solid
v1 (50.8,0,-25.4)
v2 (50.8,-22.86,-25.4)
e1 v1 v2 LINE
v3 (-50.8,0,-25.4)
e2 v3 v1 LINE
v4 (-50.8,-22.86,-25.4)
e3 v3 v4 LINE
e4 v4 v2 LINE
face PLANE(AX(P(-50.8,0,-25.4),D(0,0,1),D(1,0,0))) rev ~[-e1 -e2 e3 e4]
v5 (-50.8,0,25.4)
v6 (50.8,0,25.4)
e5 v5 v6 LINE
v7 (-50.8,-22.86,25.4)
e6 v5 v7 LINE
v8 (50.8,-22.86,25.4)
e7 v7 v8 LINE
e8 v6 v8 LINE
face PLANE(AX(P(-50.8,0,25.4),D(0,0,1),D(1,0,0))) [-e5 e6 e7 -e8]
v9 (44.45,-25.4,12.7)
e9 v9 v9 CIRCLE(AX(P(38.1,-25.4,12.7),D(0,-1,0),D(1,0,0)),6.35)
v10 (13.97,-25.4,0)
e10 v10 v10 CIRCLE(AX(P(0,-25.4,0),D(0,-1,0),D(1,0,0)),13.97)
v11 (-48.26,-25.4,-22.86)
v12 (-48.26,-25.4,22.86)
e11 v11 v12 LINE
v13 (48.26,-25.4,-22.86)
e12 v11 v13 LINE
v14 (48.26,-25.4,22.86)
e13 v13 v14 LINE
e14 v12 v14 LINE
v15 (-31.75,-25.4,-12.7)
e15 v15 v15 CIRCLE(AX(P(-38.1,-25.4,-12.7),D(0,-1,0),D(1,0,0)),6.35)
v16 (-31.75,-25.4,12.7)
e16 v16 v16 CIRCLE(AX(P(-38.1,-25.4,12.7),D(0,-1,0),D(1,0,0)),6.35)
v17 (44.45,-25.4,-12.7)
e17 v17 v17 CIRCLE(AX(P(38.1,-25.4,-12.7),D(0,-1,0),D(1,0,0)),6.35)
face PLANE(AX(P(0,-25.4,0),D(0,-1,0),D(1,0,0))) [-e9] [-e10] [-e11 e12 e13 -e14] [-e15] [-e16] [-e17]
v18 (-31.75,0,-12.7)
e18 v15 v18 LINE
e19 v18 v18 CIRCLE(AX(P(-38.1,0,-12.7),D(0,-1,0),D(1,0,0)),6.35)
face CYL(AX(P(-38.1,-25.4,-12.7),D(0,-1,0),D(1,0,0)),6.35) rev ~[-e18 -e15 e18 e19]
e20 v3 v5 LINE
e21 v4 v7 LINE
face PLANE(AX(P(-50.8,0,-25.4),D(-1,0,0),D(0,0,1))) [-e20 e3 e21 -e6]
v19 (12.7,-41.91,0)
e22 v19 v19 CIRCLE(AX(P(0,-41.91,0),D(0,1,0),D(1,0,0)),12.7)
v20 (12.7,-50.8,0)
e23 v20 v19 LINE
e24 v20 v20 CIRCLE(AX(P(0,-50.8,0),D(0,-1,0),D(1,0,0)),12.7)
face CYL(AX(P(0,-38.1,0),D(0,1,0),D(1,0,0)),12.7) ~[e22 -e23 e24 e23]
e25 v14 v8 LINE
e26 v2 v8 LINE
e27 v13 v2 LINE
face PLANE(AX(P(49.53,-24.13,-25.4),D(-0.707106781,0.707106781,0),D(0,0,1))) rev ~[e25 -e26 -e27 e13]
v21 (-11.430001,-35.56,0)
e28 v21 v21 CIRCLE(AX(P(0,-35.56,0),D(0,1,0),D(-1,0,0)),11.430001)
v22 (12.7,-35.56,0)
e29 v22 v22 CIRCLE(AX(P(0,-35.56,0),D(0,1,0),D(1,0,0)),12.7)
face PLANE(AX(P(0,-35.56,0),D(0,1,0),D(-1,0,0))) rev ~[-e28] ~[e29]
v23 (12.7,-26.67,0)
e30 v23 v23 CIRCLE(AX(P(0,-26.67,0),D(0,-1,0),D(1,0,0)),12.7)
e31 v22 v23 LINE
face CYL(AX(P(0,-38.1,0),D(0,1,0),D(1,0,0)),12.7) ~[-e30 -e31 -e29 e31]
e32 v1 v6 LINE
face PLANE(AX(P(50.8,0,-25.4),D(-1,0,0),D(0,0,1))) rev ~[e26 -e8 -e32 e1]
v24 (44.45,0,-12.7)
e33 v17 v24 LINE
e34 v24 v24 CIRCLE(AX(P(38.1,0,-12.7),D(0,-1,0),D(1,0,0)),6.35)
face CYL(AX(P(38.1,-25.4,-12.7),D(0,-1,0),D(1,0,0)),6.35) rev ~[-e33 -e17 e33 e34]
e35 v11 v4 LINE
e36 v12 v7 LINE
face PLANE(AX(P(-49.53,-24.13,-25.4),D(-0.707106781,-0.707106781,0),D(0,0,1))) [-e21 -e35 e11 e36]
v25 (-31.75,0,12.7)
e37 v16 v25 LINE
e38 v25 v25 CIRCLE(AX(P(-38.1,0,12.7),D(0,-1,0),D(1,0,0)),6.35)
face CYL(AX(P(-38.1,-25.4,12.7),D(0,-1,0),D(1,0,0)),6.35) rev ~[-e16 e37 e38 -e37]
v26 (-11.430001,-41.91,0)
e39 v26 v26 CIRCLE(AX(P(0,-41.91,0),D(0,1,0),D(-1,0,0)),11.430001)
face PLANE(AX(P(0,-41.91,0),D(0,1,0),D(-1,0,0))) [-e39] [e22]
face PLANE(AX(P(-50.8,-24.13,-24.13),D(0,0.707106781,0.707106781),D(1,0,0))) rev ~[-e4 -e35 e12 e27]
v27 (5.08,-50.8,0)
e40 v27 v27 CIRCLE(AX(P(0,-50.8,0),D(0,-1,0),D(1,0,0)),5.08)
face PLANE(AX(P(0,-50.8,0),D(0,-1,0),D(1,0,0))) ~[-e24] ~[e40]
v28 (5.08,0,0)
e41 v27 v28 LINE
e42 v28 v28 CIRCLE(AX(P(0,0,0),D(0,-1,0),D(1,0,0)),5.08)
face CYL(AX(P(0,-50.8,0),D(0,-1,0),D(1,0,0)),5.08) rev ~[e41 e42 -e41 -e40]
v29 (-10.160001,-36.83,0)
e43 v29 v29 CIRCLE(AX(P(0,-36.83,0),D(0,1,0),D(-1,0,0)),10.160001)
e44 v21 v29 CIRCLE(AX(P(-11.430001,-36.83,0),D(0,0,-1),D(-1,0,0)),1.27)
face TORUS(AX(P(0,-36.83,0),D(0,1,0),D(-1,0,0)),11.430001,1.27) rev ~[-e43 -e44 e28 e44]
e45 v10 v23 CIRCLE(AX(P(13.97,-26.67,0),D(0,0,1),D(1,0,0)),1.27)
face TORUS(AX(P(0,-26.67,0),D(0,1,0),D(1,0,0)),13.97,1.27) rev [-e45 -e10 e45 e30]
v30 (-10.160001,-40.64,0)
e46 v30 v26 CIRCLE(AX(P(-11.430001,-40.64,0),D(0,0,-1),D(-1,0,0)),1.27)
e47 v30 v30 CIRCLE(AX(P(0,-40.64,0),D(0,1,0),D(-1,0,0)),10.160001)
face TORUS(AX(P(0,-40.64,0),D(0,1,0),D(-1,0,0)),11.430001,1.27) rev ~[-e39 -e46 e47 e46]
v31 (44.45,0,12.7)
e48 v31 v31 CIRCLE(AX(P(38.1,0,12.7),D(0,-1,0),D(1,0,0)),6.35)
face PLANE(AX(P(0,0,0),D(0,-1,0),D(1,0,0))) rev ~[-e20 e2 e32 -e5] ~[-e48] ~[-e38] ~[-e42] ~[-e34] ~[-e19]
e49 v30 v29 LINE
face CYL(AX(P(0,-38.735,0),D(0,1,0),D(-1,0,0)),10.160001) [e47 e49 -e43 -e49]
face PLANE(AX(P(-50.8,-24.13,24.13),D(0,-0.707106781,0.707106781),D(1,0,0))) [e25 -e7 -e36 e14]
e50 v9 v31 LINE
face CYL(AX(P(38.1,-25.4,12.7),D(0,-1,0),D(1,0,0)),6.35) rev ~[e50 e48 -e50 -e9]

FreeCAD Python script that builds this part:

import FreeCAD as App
import Part
import Sketcher

V = App.Vector
Q = App.Units.Quantity


def edges_at(feature, points):
    """Names of the edges that pass closest to the given points."""
    edges = feature.Shape.Edges
    near = lambda p: min(range(len(edges)), key=lambda i: edges[i].distToShape(Part.Vertex(*p))[0])
    return sorted({f"Edge{near(p) + 1}" for p in points})


def add_polygon(sketch, points):
    """Adds a closed chain of lines whose ends are joined by coincident constraints."""
    first, n = sketch.GeometryCount, len(points)
    for a, b in zip(points, points[1:] + points[:1]):
        sketch.addGeometry(Part.LineSegment(App.Vector(*a, 0), App.Vector(*b, 0)), False)
    for i in range(n):
        sketch.addConstraint(Sketcher.Constraint("Coincident", first + i, 2, first + (i + 1) % n, 1))

doc = App.newDocument("Part")
body = doc.addObject("PartDesign::Body", "Body")

sketch1 = body.newObject("Sketcher::SketchObject", "Sketch")
sketch1.AttachmentSupport = (doc.getObject("XZ_Plane"), [""])
sketch1.MapMode = "FlatFace"
add_polygon(sketch1, [(-50.8, 25.4), (-50.8, -25.4), (50.8, -25.4), (50.8, 25.4)])
sketch1.addConstraint(Sketcher.Constraint("Vertical", 0))
sketch1.addConstraint(Sketcher.Constraint("Horizontal", 1))
sketch1.addConstraint(Sketcher.Constraint("Vertical", 2))
sketch1.addConstraint(Sketcher.Constraint("Horizontal", 3))
sketch1.addConstraint(Sketcher.Constraint("Symmetric", 0, 2, 2, 2, -1, 1))
sketch1.addConstraint(Sketcher.Constraint("DistanceX", 1, 1, 1, 2, Q("4 in")))
sketch1.addConstraint(Sketcher.Constraint("DistanceY", 0, 2, 0, 1, Q("2 in")))
pad1 = body.newObject("PartDesign::Pad", "Pad")
pad1.Profile = sketch1
pad1.Length = Q("1 in")

sketch2 = body.newObject("Sketcher::SketchObject", "Sketch001")
sketch2.AttachmentSupport = (doc.getObject("XZ_Plane"), [""])
sketch2.MapMode = "FlatFace"
sketch2.AttachmentOffset = App.Placement(V(0, 0, 1 * 25.4), App.Rotation())
sketch2.addGeometry(Part.Circle(V(-38.1, 12.7, 0), V(0, 0, 1), 6.35), False)
sketch2.addGeometry(Part.Circle(V(38.1, 12.7, 0), V(0, 0, 1), 6.35), False)
sketch2.addGeometry(Part.Circle(V(38.1, -12.7, 0), V(0, 0, 1), 6.35), False)
sketch2.addGeometry(Part.Circle(V(-38.1, -12.7, 0), V(0, 0, 1), 6.35), False)
sketch2.addConstraint(Sketcher.Constraint("Equal", 0, 1))
sketch2.addConstraint(Sketcher.Constraint("Equal", 1, 2))
sketch2.addConstraint(Sketcher.Constraint("Equal", 2, 3))
sketch2.addConstraint(Sketcher.Constraint("Symmetric", 0, 3, 2, 3, -1, 1))
sketch2.addConstraint(Sketcher.Constraint("Symmetric", 1, 3, 3, 3, -1, 1))
sketch2.addConstraint(Sketcher.Constraint("Symmetric", 0, 3, 1, 3, -2))
sketch2.addConstraint(Sketcher.Constraint("Diameter", 0, Q("0.5 in")))
sketch2.addConstraint(Sketcher.Constraint("DistanceX", 0, 3, 1, 3, Q("3 in")))
sketch2.addConstraint(Sketcher.Constraint("DistanceY", 2, 3, 1, 3, Q("1 in")))
pocket1 = body.newObject("PartDesign::Pocket", "Pocket")
pocket1.Profile = sketch2
pocket1.Type = "ThroughAll"

sketch3 = body.newObject("Sketcher::SketchObject", "Sketch002")
sketch3.AttachmentSupport = (doc.getObject("XY_Plane"), [""])
sketch3.MapMode = "FlatFace"
add_polygon(sketch3, [(0, -25.4), (0, -50.8), (12.7, -50.8), (12.7, -25.4)])
sketch3.addConstraint(Sketcher.Constraint("Vertical", 0))
sketch3.addConstraint(Sketcher.Constraint("Horizontal", 1))
sketch3.addConstraint(Sketcher.Constraint("Vertical", 2))
sketch3.addConstraint(Sketcher.Constraint("Horizontal", 3))
sketch3.addConstraint(Sketcher.Constraint("PointOnObject", 0, 2, -2))
sketch3.addConstraint(Sketcher.Constraint("DistanceY", 0, 2, 0, 1, Q("1 in")))
sketch3.addConstraint(Sketcher.Constraint("DistanceX", 1, 1, 1, 2, Q("0.5 in")))
sketch3.addConstraint(Sketcher.Constraint("DistanceY", 0, 2, -1, 1, Q("2 in")))
revolution = body.newObject("PartDesign::Revolution", "Revolution")
revolution.Profile = sketch3
revolution.ReferenceAxis = (sketch3, ["V_Axis"])
revolution.Angle = 360

sketch4 = body.newObject("Sketcher::SketchObject", "Sketch003")
sketch4.AttachmentSupport = (doc.getObject("XY_Plane"), [""])
sketch4.MapMode = "FlatFace"
add_polygon(sketch4, [(-25.045251, -35.56), (-25.045251, -41.91), (-10.160001, -41.91), (-10.160001, -35.56)])
sketch4.addConstraint(Sketcher.Constraint("Vertical", 0))
sketch4.addConstraint(Sketcher.Constraint("Horizontal", 1))
sketch4.addConstraint(Sketcher.Constraint("Vertical", 2))
sketch4.addConstraint(Sketcher.Constraint("Horizontal", 3))
sketch4.addConstraint(Sketcher.Constraint("DistanceY", 0, 2, 0, 1, Q("0.25 in")))
sketch4.addConstraint(Sketcher.Constraint("DistanceX", 1, 2, -1, 1, Q("0.4 in")))
sketch4.addConstraint(Sketcher.Constraint("DistanceY", 2, 2, -1, 1, Q("1.4 in")))
sketch4.addConstraint(Sketcher.Constraint("DistanceX", 1, 1, 1, 2, Q("14.885251 mm")))
groove = body.newObject("PartDesign::Groove", "Groove")
groove.Profile = sketch4
groove.ReferenceAxis = (sketch4, ["V_Axis"])
groove.Angle = 360
doc.recompute()

fillet = body.newObject("PartDesign::Fillet", "Fillet")
fillet.Base = (groove, edges_at(groove, [(-12.7, -25.4, 0), (10.16, -35.56, 0), (10.16, -41.91, 0)]))
fillet.Radius = Q("0.05 in")
doc.recompute()

chamfer = body.newObject("PartDesign::Chamfer", "Chamfer")
chamfer.Base = (fillet, edges_at(fillet, [
    (0, -25.4, -25.4),
    (0, -25.4, 25.4),
    (50.8, -25.4, 0),
    (-50.8, -25.4, 0),
]))
chamfer.Size = Q("0.1 in")

sketch5 = body.newObject("Sketcher::SketchObject", "Sketch004")
sketch5.AttachmentSupport = (doc.getObject("XZ_Plane"), [""])
sketch5.MapMode = "FlatFace"
sketch5.AttachmentOffset = App.Placement(V(0, 0, 2 * 25.4), App.Rotation())
sketch5.addGeometry(Part.Circle(V(0, 0, 0), V(0, 0, 1), 5.08), False)
sketch5.addConstraint(Sketcher.Constraint("Coincident", 0, 3, -1, 1))
sketch5.addConstraint(Sketcher.Constraint("Diameter", 0, Q("0.4 in")))
pocket2 = body.newObject("PartDesign::Pocket", "Pocket001")
pocket2.Profile = sketch5
pocket2.Type = "ThroughAll"

doc.recompute()
